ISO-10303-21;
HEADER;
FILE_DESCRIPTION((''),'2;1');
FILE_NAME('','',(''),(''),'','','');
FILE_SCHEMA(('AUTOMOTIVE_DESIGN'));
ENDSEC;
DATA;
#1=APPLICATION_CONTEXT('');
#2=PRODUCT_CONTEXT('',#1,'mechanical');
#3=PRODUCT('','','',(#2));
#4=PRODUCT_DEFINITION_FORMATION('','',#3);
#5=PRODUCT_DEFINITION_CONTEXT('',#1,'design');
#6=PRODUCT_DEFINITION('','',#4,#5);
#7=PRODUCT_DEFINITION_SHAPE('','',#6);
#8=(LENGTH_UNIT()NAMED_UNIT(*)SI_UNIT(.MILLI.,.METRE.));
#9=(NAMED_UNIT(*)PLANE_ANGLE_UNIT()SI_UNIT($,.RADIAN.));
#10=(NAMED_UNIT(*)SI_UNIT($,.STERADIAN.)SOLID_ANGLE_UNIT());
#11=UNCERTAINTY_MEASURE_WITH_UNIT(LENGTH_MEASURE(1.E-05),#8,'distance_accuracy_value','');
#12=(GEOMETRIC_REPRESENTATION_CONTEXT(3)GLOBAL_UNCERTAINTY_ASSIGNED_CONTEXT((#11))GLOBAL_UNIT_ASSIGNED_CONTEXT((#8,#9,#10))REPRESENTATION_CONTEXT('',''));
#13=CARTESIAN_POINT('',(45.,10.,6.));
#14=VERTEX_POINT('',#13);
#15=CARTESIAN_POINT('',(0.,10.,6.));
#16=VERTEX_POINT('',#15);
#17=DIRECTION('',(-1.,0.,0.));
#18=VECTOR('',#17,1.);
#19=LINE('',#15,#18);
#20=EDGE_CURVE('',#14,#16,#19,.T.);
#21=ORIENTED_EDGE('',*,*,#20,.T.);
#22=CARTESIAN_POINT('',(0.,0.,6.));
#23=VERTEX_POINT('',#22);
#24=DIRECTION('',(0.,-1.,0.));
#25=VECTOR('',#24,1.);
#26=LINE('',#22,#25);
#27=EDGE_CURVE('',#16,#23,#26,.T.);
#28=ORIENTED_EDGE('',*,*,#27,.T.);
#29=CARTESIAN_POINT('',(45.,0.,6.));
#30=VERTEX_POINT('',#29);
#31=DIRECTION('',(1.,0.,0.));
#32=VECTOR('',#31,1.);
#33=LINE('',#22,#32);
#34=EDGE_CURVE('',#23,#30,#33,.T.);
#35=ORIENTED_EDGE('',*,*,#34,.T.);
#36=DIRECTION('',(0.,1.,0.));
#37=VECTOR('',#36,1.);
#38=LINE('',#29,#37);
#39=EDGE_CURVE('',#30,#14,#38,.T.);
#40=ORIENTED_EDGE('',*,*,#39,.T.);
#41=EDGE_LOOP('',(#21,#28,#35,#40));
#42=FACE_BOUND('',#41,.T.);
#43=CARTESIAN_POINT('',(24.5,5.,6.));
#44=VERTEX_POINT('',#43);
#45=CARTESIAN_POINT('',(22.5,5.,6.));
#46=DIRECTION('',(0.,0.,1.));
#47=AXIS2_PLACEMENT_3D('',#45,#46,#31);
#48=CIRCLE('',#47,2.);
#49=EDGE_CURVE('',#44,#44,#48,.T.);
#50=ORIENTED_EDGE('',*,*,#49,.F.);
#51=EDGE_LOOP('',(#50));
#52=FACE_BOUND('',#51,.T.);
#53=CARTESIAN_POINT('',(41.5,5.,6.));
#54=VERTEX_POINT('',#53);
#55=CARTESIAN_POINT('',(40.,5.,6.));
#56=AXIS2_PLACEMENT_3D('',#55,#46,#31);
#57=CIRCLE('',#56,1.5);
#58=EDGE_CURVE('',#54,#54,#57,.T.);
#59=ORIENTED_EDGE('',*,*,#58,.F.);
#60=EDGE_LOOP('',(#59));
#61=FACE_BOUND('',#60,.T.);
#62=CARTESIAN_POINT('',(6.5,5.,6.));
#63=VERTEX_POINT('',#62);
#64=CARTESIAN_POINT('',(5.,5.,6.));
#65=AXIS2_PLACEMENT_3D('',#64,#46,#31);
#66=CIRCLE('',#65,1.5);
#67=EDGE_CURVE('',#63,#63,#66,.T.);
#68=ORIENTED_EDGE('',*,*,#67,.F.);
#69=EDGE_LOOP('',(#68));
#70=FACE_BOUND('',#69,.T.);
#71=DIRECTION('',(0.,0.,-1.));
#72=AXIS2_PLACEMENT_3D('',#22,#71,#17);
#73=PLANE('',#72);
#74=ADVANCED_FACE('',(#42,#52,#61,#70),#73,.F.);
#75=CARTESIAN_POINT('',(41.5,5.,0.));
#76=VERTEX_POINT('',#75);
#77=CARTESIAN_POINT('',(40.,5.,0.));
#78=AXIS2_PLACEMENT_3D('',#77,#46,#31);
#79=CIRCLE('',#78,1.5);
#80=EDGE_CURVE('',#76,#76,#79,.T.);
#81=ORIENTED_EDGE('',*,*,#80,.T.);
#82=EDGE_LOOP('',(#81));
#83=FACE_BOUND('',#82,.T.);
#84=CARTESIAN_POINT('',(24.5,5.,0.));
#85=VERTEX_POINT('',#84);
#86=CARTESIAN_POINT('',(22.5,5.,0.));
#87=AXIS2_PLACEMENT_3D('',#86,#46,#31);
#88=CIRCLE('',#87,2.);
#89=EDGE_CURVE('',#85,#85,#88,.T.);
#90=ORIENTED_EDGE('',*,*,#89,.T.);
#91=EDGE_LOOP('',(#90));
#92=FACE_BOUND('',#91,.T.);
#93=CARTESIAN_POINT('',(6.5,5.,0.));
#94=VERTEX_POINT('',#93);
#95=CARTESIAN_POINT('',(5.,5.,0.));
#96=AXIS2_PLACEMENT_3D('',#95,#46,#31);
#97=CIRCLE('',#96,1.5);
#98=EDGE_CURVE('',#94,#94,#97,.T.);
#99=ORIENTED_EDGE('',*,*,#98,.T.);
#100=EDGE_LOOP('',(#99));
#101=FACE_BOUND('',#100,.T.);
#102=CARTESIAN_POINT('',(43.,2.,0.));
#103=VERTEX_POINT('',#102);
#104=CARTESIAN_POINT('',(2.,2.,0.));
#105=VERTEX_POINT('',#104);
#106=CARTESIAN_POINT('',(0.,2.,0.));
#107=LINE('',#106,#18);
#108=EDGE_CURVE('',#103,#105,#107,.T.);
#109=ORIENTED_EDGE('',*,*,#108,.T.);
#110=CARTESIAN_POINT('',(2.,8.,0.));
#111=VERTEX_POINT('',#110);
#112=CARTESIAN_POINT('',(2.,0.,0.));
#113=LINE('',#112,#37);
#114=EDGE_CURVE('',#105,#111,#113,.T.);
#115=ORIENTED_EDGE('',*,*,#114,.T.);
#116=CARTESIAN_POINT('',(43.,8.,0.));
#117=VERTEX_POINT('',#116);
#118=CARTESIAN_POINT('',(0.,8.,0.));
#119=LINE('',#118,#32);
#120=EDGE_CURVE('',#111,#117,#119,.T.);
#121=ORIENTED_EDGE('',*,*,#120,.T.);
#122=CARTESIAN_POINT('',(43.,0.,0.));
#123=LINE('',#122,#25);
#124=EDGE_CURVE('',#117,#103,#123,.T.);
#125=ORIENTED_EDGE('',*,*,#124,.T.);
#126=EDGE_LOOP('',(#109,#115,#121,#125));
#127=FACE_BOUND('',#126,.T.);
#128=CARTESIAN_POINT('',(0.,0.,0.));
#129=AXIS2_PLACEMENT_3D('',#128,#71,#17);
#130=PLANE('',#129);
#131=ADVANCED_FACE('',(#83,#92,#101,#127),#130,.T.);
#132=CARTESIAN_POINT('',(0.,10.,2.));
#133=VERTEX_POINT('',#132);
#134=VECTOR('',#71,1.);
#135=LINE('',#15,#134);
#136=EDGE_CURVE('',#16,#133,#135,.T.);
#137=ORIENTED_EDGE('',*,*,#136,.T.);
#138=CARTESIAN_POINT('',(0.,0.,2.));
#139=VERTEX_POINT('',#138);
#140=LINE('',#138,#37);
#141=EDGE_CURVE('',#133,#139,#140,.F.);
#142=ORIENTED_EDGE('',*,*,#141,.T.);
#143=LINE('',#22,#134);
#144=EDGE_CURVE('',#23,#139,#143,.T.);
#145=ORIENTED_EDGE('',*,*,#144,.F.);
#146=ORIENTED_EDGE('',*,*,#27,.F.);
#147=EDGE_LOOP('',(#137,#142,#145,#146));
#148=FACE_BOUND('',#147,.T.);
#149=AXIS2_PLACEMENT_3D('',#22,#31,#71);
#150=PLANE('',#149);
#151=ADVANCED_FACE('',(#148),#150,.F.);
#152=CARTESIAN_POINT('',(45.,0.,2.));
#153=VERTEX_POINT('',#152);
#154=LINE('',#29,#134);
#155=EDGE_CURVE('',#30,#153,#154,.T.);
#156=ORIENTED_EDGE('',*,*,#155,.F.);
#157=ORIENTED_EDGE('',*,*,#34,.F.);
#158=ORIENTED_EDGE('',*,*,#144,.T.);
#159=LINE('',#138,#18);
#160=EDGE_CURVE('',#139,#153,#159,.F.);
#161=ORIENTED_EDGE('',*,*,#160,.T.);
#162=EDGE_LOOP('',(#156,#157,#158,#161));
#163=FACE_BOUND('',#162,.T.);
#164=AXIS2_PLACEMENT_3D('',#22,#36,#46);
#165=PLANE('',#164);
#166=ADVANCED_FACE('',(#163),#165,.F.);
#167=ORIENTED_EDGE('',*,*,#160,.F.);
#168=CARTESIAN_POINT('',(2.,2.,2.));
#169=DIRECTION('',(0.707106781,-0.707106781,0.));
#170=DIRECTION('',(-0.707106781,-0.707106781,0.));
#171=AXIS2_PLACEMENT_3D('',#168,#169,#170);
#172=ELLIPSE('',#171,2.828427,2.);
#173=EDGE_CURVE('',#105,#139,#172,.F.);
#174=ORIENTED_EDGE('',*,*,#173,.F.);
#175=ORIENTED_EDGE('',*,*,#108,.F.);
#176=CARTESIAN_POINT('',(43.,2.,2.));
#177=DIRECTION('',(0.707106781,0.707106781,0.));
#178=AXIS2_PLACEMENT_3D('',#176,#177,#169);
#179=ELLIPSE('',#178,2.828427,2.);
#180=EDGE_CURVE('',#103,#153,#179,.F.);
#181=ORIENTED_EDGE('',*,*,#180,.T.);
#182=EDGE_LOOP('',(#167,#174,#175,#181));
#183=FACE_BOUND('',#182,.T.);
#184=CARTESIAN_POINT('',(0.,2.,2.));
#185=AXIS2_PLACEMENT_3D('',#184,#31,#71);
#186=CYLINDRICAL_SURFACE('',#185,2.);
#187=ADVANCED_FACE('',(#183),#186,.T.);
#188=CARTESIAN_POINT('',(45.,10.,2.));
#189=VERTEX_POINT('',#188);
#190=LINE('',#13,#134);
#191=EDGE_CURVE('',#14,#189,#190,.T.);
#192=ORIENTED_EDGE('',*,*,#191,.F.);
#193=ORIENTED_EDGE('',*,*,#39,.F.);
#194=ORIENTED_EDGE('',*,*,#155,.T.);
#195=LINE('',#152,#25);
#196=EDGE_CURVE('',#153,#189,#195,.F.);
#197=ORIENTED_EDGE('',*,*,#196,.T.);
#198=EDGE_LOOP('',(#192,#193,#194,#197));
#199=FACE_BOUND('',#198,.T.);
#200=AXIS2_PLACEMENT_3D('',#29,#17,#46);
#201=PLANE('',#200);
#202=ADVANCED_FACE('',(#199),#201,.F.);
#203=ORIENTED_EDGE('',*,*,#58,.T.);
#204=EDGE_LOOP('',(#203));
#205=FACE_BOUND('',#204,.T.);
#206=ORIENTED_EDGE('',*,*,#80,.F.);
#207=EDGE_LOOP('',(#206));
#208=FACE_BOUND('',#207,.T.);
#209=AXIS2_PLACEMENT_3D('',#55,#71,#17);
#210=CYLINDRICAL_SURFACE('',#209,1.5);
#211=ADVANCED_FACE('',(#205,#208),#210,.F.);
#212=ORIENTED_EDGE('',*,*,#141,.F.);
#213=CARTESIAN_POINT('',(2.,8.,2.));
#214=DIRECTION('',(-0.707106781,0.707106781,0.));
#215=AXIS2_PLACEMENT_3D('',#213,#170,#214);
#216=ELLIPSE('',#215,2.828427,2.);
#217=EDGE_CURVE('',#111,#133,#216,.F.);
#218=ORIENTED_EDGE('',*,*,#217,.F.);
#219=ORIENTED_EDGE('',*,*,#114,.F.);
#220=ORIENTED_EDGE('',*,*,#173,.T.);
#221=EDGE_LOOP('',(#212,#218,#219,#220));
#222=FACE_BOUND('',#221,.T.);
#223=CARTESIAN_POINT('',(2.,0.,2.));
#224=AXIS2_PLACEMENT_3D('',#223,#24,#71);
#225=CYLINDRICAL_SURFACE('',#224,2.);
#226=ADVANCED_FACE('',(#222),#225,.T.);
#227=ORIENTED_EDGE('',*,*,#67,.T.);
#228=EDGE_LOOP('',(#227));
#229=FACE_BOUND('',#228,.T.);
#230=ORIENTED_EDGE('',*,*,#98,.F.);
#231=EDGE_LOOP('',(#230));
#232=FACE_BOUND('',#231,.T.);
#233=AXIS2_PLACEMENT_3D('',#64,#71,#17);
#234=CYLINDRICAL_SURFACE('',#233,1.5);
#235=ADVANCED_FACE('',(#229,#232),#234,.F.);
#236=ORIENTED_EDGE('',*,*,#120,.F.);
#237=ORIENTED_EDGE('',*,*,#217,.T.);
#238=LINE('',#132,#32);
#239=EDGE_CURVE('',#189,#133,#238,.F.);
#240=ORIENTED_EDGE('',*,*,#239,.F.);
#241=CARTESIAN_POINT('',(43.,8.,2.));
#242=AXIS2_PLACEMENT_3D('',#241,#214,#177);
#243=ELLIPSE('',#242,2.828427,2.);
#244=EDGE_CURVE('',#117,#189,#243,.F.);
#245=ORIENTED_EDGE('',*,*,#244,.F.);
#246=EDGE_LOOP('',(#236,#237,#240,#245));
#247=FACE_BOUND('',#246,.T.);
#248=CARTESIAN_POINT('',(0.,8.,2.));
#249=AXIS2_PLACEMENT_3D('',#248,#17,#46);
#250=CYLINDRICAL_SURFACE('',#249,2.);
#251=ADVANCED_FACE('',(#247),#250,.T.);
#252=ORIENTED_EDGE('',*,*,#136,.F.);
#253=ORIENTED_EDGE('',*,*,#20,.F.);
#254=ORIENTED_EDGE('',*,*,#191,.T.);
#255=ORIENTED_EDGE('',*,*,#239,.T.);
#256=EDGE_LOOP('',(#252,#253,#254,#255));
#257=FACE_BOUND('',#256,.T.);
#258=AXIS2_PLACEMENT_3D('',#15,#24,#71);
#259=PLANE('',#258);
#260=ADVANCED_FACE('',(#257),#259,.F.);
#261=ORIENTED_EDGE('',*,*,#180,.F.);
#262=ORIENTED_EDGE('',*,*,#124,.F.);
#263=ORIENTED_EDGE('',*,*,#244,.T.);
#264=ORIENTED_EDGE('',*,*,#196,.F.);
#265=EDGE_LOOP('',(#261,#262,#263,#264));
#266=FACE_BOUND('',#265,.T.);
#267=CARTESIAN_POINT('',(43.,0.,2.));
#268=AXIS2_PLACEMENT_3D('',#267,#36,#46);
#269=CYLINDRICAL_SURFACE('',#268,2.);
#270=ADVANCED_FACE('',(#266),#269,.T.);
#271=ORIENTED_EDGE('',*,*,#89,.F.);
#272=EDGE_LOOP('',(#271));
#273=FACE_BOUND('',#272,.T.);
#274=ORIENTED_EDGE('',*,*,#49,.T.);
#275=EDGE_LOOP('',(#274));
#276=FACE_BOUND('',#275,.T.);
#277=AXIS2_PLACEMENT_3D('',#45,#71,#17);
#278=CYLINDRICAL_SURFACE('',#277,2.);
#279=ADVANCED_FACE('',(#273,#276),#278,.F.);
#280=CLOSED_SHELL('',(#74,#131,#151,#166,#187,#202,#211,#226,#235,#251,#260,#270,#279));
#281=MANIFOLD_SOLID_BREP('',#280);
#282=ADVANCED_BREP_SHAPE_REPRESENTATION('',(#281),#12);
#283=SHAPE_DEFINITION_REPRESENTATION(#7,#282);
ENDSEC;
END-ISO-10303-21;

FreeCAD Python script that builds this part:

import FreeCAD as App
import Part
import Sketcher

V = App.Vector


def edges_at(feature, points):
    """Names of the edges that pass closest to the given points."""
    edges = feature.Shape.Edges
    near = lambda p: min(range(len(edges)), key=lambda i: edges[i].distToShape(Part.Vertex(*p))[0])
    return sorted({f"Edge{near(p) + 1}" for p in points})


def add_polygon(sketch, points):
    """Adds a closed chain of lines whose ends are joined by coincident constraints."""
    first, n = sketch.GeometryCount, len(points)
    for a, b in zip(points, points[1:] + points[:1]):
        sketch.addGeometry(Part.LineSegment(App.Vector(*a, 0), App.Vector(*b, 0)), False)
    for i in range(n):
        sketch.addConstraint(Sketcher.Constraint("Coincident", first + i, 2, first + (i + 1) % n, 1))

doc = App.newDocument("Part")
body = doc.addObject("PartDesign::Body", "Body")

# Sketch on XY plane
sketch1 = body.newObject("Sketcher::SketchObject", "Sketch")
sketch1.AttachmentSupport = (doc.getObject("XY_Plane"), [""])
sketch1.MapMode = "FlatFace"
add_polygon(sketch1, [(0, 10), (0, 0), (45, 0), (45, 10)])  # lines 0-3
sketch1.addGeometry(Part.Circle(V(5, 5, 0), V(0, 0, 1), 1.5), False)  # 4
sketch1.addGeometry(Part.Circle(V(22.5, 5, 0), V(0, 0, 1), 2), False)  # 5
sketch1.addGeometry(Part.Circle(V(40, 5, 0), V(0, 0, 1), 1.5), False)  # 6
sketch1.addConstraint(Sketcher.Constraint("Vertical", 0))
sketch1.addConstraint(Sketcher.Constraint("Horizontal", 1))
sketch1.addConstraint(Sketcher.Constraint("Vertical", 2))
sketch1.addConstraint(Sketcher.Constraint("Horizontal", 3))
sketch1.addConstraint(Sketcher.Constraint("Coincident", 0, 2, -1, 1))
sketch1.addConstraint(Sketcher.Constraint("Equal", 4, 6))
sketch1.addConstraint(Sketcher.Constraint("Horizontal", 4, 3, 5, 3))
sketch1.addConstraint(Sketcher.Constraint("Horizontal", 5, 3, 6, 3))
sketch1.addConstraint(Sketcher.Constraint("Diameter", 4, 3.0))
sketch1.addConstraint(Sketcher.Constraint("Diameter", 5, 4.0))
sketch1.addConstraint(Sketcher.Constraint("DistanceX", 1, 1, 1, 2, 45.0))
sketch1.addConstraint(Sketcher.Constraint("DistanceY", 0, 2, 0, 1, 10.0))
sketch1.addConstraint(Sketcher.Constraint("DistanceX", -1, 1, 4, 3, 5.0))
sketch1.addConstraint(Sketcher.Constraint("DistanceY", -1, 1, 4, 3, 5.0))
sketch1.addConstraint(Sketcher.Constraint("DistanceX", -1, 1, 6, 3, 40.0))
sketch1.addConstraint(Sketcher.Constraint("DistanceX", -1, 1, 5, 3, 22.5))
pad1 = body.newObject("PartDesign::Pad", "Pad")
pad1.Profile = sketch1
pad1.Length = 6
doc.recompute()

fillet = body.newObject("PartDesign::Fillet", "Fillet")
fillet.Base = (pad1, edges_at(pad1, [
    (22.5, 10, 0),
    (45, 5, 0),
    (22.5, 0, 0),
    (0, 5, 0),
]))
fillet.Radius = 2

doc.recompute()
